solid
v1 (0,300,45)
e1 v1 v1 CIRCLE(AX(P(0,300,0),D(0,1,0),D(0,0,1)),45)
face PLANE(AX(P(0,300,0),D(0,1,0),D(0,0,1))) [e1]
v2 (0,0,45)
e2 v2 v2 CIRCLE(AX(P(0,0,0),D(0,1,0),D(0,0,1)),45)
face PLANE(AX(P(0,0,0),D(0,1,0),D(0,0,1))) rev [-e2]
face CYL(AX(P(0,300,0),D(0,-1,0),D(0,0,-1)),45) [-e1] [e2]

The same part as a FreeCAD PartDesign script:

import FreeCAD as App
import Part
import Sketcher

doc = App.newDocument("Part")
body = doc.addObject("PartDesign::Body", "Body")

# Sketch on XZ plane
sketch1 = body.newObject("Sketcher::SketchObject", "Sketch")
sketch1.AttachmentSupport = (doc.getObject("XZ_Plane"), [""])
sketch1.MapMode = "FlatFace"
sketch1.addGeometry(Part.Circle(App.Vector(0, 0, 0), App.Vector(0, 0, 1), 45), False)
sketch1.addConstraint(Sketcher.Constraint("Coincident", 0, 3, -1, 1))
sketch1.addConstraint(Sketcher.Constraint("Diameter", 0, 90.0))
pad1 = body.newObject("PartDesign::Pad", "Pad")
pad1.Profile = sketch1
pad1.Length = 300
pad1.Reversed = True

doc.recompute()
